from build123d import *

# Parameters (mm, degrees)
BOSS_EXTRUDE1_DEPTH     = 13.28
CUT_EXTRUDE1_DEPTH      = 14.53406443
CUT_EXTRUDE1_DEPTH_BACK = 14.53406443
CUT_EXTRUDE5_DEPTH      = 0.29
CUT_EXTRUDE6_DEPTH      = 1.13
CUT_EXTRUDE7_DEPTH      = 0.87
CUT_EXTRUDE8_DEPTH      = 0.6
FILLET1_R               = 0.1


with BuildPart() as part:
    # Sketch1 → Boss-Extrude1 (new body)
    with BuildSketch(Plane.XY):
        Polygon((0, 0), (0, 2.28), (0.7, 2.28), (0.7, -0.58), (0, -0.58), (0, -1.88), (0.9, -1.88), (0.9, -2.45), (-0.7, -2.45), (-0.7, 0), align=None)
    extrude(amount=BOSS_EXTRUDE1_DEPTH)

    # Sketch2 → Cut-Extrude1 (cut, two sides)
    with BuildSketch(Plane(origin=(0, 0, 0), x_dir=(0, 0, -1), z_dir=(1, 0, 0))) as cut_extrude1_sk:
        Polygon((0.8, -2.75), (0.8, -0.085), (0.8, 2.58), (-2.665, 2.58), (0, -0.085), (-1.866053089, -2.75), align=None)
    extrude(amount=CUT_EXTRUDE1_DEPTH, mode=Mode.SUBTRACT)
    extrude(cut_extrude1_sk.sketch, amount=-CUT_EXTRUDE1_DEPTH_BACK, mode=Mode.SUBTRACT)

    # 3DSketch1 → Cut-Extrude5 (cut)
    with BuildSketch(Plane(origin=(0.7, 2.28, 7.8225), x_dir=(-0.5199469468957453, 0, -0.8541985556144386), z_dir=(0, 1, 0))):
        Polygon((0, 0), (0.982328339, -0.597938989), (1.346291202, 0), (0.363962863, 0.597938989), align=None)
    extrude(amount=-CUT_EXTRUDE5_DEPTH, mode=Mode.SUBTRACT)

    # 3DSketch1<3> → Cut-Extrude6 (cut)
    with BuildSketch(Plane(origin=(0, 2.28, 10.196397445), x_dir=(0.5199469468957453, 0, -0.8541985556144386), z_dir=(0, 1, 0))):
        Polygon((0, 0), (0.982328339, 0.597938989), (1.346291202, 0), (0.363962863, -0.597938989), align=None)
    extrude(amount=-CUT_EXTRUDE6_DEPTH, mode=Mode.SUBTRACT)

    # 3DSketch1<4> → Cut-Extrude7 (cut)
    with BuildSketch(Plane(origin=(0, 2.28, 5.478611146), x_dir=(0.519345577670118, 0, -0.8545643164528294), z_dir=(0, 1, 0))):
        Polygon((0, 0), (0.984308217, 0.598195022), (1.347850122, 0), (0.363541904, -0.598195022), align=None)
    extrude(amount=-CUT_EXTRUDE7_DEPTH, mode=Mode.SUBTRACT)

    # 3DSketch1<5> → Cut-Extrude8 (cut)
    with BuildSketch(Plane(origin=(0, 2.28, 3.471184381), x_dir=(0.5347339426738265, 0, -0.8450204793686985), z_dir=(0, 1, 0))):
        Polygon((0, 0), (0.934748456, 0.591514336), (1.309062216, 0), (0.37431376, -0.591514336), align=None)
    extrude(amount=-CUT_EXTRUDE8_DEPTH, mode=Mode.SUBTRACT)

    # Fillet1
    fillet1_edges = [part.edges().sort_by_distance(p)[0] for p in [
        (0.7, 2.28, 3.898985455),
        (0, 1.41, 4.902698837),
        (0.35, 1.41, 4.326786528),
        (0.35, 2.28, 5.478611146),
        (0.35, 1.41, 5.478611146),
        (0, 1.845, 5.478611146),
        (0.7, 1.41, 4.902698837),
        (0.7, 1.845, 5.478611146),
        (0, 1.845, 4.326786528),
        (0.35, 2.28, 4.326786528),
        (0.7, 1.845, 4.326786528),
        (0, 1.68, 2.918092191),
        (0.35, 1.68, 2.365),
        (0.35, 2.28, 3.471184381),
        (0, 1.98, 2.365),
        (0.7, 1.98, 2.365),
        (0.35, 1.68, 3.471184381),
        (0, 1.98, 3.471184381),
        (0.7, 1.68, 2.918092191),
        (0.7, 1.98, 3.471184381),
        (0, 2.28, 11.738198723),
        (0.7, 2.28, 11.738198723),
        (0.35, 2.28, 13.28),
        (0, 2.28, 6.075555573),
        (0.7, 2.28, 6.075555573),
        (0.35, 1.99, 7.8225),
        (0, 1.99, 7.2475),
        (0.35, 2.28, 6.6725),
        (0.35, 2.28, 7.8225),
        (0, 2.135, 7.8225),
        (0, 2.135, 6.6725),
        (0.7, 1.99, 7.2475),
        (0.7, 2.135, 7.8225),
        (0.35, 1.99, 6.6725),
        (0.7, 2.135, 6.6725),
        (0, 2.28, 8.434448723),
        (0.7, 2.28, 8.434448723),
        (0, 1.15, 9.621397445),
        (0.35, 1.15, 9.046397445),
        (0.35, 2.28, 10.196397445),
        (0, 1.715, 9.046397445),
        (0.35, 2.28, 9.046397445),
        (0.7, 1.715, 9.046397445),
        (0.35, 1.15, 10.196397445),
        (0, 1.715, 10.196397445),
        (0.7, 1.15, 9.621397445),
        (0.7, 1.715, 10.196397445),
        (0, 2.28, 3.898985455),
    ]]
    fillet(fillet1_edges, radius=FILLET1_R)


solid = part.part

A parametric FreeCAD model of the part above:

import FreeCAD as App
import Part
import Sketcher
Q = App.Units.Quantity


def edges_at(feature, points):
    """Names of the edges that pass closest to the given points."""
    edges = feature.Shape.Edges
    near = lambda p: min(range(len(edges)), key=lambda i: edges[i].distToShape(Part.Vertex(*p))[0])
    return sorted({f"Edge{near(p) + 1}" for p in points})


def add_polygon(sketch, points):
    """Adds a closed chain of lines whose ends are joined by coincident constraints."""
    first, n = sketch.GeometryCount, len(points)
    for a, b in zip(points, points[1:] + points[:1]):
        sketch.addGeometry(Part.LineSegment(App.Vector(*a, 0), App.Vector(*b, 0)), False)
    for i in range(n):
        sketch.addConstraint(Sketcher.Constraint("Coincident", first + i, 2, first + (i + 1) % n, 1))

doc = App.newDocument("Part")
params = doc.addObject("Spreadsheet::Sheet", "Params")
for row, (alias, value) in enumerate([
    ("sketch1_width", "0.7 mm"),
    ("sketch1_width2", "1.6 mm"),
    ("sketch1_height", "1.3 mm"),
    ("sketch1_height2", "2.28 mm"),
    ("sketch1_height3", "2.45 mm"),
    ("pad1_length", "13.28 mm"),
    ("sketch2_width", "5.33 mm"),
    ("sketch3_width", "0.7 mm"),
    ("sketch3_height", "1.15 mm"),
    ("pocket2_length", "0.29 mm"),
    ("sketch4_width", "0.7 mm"),
    ("sketch4_height", "1.15 mm"),
    ("pocket3_length", "1.13 mm"),
    ("sketch5_width", "0.7 mm"),
    ("pocket4_length", "0.87 mm"),
    ("sketch6_width", "0.7 mm"),
    ("pocket5_length", "0.6 mm"),
    ("fillet_radius", "0.1 mm"),
], start=1):
    params.set(f"A{row}", alias)
    params.set(f"B{row}", "=" + value)
    params.setAlias(f"B{row}", alias)

body = doc.addObject("PartDesign::Body", "Body")

sketch1 = body.newObject("Sketcher::SketchObject", "Sketch")
sketch1.AttachmentSupport = (doc.getObject("XY_Plane"), [""])
sketch1.MapMode = "FlatFace"
add_polygon(sketch1, [(0, 2.3), (0, 0), (-0.7, 0), (-0.7, -2.5), (0.9, -2.5), (0.9, -1.9), (0, -1.9), (0, -0.6), (0.7, -0.6), (0.7, 2.3)])
sketch1.addConstraint([
    Sketcher.Constraint("Vertical", 0),
    Sketcher.Constraint("Horizontal", 1),
    Sketcher.Constraint("Vertical", 2),
    Sketcher.Constraint("Horizontal", 3),
    Sketcher.Constraint("Vertical", 4),
    Sketcher.Constraint("Horizontal", 5),
    Sketcher.Constraint("Vertical", 6),
    Sketcher.Constraint("Horizontal", 7),
    Sketcher.Constraint("Vertical", 8),
    Sketcher.Constraint("Horizontal", 9),
    Sketcher.Constraint("Coincident", 0, 2, -1, 1),
    Sketcher.Constraint("PointOnObject", 5, 2, -2),
    Sketcher.Constraint("Equal", 1, 7),
    Sketcher.Constraint("DistanceX", 1, 2, 1, 1, Q("0.7 mm")),
    Sketcher.Constraint("DistanceX", 3, 1, 3, 2, Q("1.6 mm")),
    Sketcher.Constraint("DistanceY", 6, 1, 6, 2, Q("1.3 mm")),
    Sketcher.Constraint("DistanceY", 0, 2, 0, 1, Q("2.28 mm")),
    Sketcher.Constraint("DistanceY", 2, 2, 2, 1, Q("2.45 mm")),
    Sketcher.Constraint("DistanceY", 4, 1, 4, 2, Q("0.57 mm")),
])
sketch1.setExpression("Constraints[23]", "Params.sketch1_width")
sketch1.setExpression("Constraints[24]", "Params.sketch1_width2")
sketch1.setExpression("Constraints[25]", "Params.sketch1_height")
sketch1.setExpression("Constraints[26]", "Params.sketch1_height2")
sketch1.setExpression("Constraints[27]", "Params.sketch1_height3")
pad1 = body.newObject("PartDesign::Pad", "Pad")
pad1.Profile = sketch1
pad1.setExpression("Length", "Params.pad1_length")

sketch2 = body.newObject("Sketcher::SketchObject", "Sketch001")
sketch2.AttachmentSupport = (doc.getObject("YZ_Plane"), [""])
sketch2.MapMode = "FlatFace"
add_polygon(sketch2, [(-2.8, -0.8), (2.6, -0.8), (2.6, 2.7), (-0.1, 0), (-2.8, 1.9)])
sketch2.addConstraint([
    Sketcher.Constraint("Horizontal", 0),
    Sketcher.Constraint("Vertical", 1),
    Sketcher.Constraint("Vertical", 4),
    Sketcher.Constraint("PointOnObject", 2, 2, -1),
    Sketcher.Constraint("Angle", 2, Q("-135 deg")),
    Sketcher.Constraint("Angle", 3, Q("145 deg")),
    Sketcher.Constraint("DistanceX", 0, 1, 0, 2, Q("5.33 mm")),
    Sketcher.Constraint("DistanceY", 0, 2, -1, 1, Q("0.8 mm")),
    Sketcher.Constraint("DistanceY", 1, 1, 1, 2, Q("3.465 mm")),
    Sketcher.Constraint("DistanceX", -1, 1, 0, 2, Q("2.58 mm")),
])
sketch2.setExpression("Constraints[11]", "Params.sketch2_width")
pocket1 = body.newObject("PartDesign::Pocket", "Pocket")
pocket1.Profile = sketch2
pocket1.Type = "ThroughAll"
pocket1.Midplane = True

sketch3 = body.newObject("Sketcher::SketchObject", "Sketch002")
sketch3.AttachmentSupport = (doc.getObject("XZ_Plane"), [""])
sketch3.MapMode = "FlatFace"
sketch3.AttachmentOffset = App.Placement(App.Vector(0, 0, -2.28), App.Rotation())
add_polygon(sketch3, [(0.7, 7.8), (0.7, 6.7), (0, 6.7), (0, 7.8)])
sketch3.addConstraint([
    Sketcher.Constraint("Vertical", 0),
    Sketcher.Constraint("Horizontal", 1),
    Sketcher.Constraint("Vertical", 2),
    Sketcher.Constraint("Horizontal", 3),
    Sketcher.Constraint("PointOnObject", 1, 2, -2),
    Sketcher.Constraint("DistanceX", 1, 2, 1, 1, Q("0.7 mm")),
    Sketcher.Constraint("DistanceY", 0, 2, 0, 1, Q("1.15 mm")),
    Sketcher.Constraint("DistanceY", -1, 1, 0, 2, Q("6.6725 mm")),
])
sketch3.setExpression("Constraints[9]", "Params.sketch3_width")
sketch3.setExpression("Constraints[10]", "Params.sketch3_height")
pocket2 = body.newObject("PartDesign::Pocket", "Pocket001")
pocket2.Profile = sketch3
pocket2.setExpression("Length", "Params.pocket2_length")
pocket2.Reversed = True

sketch4 = body.newObject("Sketcher::SketchObject", "Sketch003")
sketch4.AttachmentSupport = (doc.getObject("XZ_Plane"), [""])
sketch4.MapMode = "FlatFace"
sketch4.AttachmentOffset = App.Placement(App.Vector(0, 0, -2.28), App.Rotation())
add_polygon(sketch4, [(0, 9), (0, 10.2), (0.7, 10.2), (0.7, 9)])
sketch4.addConstraint([
    Sketcher.Constraint("Vertical", 0),
    Sketcher.Constraint("Horizontal", 1),
    Sketcher.Constraint("Vertical", 2),
    Sketcher.Constraint("Horizontal", 3),
    Sketcher.Constraint("PointOnObject", 0, 2, -2),
    Sketcher.Constraint("DistanceX", 1, 1, 1, 2, Q("0.7 mm")),
    Sketcher.Constraint("DistanceY", 0, 1, 0, 2, Q("1.15 mm")),
    Sketcher.Constraint("DistanceY", -1, 1, 0, 2, Q("10.196397 mm")),
])
sketch4.setExpression("Constraints[9]", "Params.sketch4_width")
sketch4.setExpression("Constraints[10]", "Params.sketch4_height")
pocket3 = body.newObject("PartDesign::Pocket", "Pocket002")
pocket3.Profile = sketch4
pocket3.setExpression("Length", "Params.pocket3_length")
pocket3.Reversed = True

sketch5 = body.newObject("Sketcher::SketchObject", "Sketch004")
sketch5.AttachmentSupport = (doc.getObject("XZ_Plane"), [""])
sketch5.MapMode = "FlatFace"
sketch5.AttachmentOffset = App.Placement(App.Vector(0, 0, -2.28), App.Rotation())
add_polygon(sketch5, [(0, 4.3), (0, 5.5), (0.7, 5.5), (0.7, 4.3)])
sketch5.addConstraint([
    Sketcher.Constraint("Vertical", 0),
    Sketcher.Constraint("Horizontal", 1),
    Sketcher.Constraint("Vertical", 2),
    Sketcher.Constraint("Horizontal", 3),
    Sketcher.Constraint("PointOnObject", 0, 2, -2),
    Sketcher.Constraint("DistanceX", 1, 1, 1, 2, Q("0.7 mm")),
    Sketcher.Constraint("DistanceY", 0, 1, 0, 2, Q("1.151825 mm")),
    Sketcher.Constraint("DistanceY", -1, 1, 0, 2, Q("5.478611 mm")),
])
sketch5.setExpression("Constraints[9]", "Params.sketch5_width")
pocket4 = body.newObject("PartDesign::Pocket", "Pocket003")
pocket4.Profile = sketch5
pocket4.setExpression("Length", "Params.pocket4_length")
pocket4.Reversed = True

sketch6 = body.newObject("Sketcher::SketchObject", "Sketch005")
sketch6.AttachmentSupport = (doc.getObject("XZ_Plane"), [""])
sketch6.MapMode = "FlatFace"
sketch6.AttachmentOffset = App.Placement(App.Vector(0, 0, -2.28), App.Rotation())
add_polygon(sketch6, [(0, 2.4), (0, 3.5), (0.7, 3.5), (0.7, 2.4)])
sketch6.addConstraint([
    Sketcher.Constraint("Vertical", 0),
    Sketcher.Constraint("Horizontal", 1),
    Sketcher.Constraint("Vertical", 2),
    Sketcher.Constraint("Horizontal", 3),
    Sketcher.Constraint("PointOnObject", 0, 2, -2),
    Sketcher.Constraint("DistanceX", 1, 1, 1, 2, Q("0.7 mm")),
    Sketcher.Constraint("DistanceY", -1, 1, 2, 2, Q("2.365 mm")),
    Sketcher.Constraint("DistanceY", 0, 1, 0, 2, Q("1.106184 mm")),
])
sketch6.setExpression("Constraints[9]", "Params.sketch6_width")
pocket5 = body.newObject("PartDesign::Pocket", "Pocket004")
pocket5.Profile = sketch6
pocket5.setExpression("Length", "Params.pocket5_length")
pocket5.Reversed = True
doc.recompute()

fillet = body.newObject("PartDesign::Fillet", "Fillet")
fillet.Base = (pocket5, edges_at(pocket5, [
    (0.7, 2.28, 3.899),
    (0, 1.41, 4.903),
    (0.35, 1.41, 4.327),
    (0.35, 2.28, 5.479),
    (0.35, 1.41, 5.479),
    (0, 1.845, 5.479),
    (0.7, 1.41, 4.903),
    (0.7, 1.845, 5.479),
    (0, 1.845, 4.327),
    (0.35, 2.28, 4.327),
    (0.7, 1.845, 4.327),
    (0, 1.68, 2.918),
    (0.35, 1.68, 2.365),
    (0.35, 2.28, 3.471),
    (0, 1.98, 2.365),
    (0.7, 1.98, 2.365),
    (0.35, 1.68, 3.471),
    (0, 1.98, 3.471),
    (0.7, 1.68, 2.918),
    (0.7, 1.98, 3.471),
    (0, 2.28, 11.738),
    (0.7, 2.28, 11.738),
    (0.35, 2.28, 13.28),
    (0, 2.28, 6.076),
    (0.7, 2.28, 6.076),
    (0.35, 1.99, 7.822),
    (0, 1.99, 7.247),
    (0.35, 2.28, 6.673),
    (0.35, 2.28, 7.822),
    (0, 2.135, 7.822),
    (0, 2.135, 6.673),
    (0.7, 1.99, 7.247),
    (0.7, 2.135, 7.822),
    (0.35, 1.99, 6.673),
    (0.7, 2.135, 6.673),
    (0, 2.28, 8.434),
    (0.7, 2.28, 8.434),
    (0, 1.15, 9.621),
    (0.35, 1.15, 9.046),
    (0.35, 2.28, 10.196),
    (0, 1.715, 9.046),
    (0.35, 2.28, 9.046),
    (0.7, 1.715, 9.046),
    (0.35, 1.15, 10.196),
    (0, 1.715, 10.196),
    (0.7, 1.15, 9.621),
    (0.7, 1.715, 10.196),
    (0, 2.28, 3.899),
]))
fillet.setExpression("Radius", "Params.fillet_radius")

doc.recompute()
